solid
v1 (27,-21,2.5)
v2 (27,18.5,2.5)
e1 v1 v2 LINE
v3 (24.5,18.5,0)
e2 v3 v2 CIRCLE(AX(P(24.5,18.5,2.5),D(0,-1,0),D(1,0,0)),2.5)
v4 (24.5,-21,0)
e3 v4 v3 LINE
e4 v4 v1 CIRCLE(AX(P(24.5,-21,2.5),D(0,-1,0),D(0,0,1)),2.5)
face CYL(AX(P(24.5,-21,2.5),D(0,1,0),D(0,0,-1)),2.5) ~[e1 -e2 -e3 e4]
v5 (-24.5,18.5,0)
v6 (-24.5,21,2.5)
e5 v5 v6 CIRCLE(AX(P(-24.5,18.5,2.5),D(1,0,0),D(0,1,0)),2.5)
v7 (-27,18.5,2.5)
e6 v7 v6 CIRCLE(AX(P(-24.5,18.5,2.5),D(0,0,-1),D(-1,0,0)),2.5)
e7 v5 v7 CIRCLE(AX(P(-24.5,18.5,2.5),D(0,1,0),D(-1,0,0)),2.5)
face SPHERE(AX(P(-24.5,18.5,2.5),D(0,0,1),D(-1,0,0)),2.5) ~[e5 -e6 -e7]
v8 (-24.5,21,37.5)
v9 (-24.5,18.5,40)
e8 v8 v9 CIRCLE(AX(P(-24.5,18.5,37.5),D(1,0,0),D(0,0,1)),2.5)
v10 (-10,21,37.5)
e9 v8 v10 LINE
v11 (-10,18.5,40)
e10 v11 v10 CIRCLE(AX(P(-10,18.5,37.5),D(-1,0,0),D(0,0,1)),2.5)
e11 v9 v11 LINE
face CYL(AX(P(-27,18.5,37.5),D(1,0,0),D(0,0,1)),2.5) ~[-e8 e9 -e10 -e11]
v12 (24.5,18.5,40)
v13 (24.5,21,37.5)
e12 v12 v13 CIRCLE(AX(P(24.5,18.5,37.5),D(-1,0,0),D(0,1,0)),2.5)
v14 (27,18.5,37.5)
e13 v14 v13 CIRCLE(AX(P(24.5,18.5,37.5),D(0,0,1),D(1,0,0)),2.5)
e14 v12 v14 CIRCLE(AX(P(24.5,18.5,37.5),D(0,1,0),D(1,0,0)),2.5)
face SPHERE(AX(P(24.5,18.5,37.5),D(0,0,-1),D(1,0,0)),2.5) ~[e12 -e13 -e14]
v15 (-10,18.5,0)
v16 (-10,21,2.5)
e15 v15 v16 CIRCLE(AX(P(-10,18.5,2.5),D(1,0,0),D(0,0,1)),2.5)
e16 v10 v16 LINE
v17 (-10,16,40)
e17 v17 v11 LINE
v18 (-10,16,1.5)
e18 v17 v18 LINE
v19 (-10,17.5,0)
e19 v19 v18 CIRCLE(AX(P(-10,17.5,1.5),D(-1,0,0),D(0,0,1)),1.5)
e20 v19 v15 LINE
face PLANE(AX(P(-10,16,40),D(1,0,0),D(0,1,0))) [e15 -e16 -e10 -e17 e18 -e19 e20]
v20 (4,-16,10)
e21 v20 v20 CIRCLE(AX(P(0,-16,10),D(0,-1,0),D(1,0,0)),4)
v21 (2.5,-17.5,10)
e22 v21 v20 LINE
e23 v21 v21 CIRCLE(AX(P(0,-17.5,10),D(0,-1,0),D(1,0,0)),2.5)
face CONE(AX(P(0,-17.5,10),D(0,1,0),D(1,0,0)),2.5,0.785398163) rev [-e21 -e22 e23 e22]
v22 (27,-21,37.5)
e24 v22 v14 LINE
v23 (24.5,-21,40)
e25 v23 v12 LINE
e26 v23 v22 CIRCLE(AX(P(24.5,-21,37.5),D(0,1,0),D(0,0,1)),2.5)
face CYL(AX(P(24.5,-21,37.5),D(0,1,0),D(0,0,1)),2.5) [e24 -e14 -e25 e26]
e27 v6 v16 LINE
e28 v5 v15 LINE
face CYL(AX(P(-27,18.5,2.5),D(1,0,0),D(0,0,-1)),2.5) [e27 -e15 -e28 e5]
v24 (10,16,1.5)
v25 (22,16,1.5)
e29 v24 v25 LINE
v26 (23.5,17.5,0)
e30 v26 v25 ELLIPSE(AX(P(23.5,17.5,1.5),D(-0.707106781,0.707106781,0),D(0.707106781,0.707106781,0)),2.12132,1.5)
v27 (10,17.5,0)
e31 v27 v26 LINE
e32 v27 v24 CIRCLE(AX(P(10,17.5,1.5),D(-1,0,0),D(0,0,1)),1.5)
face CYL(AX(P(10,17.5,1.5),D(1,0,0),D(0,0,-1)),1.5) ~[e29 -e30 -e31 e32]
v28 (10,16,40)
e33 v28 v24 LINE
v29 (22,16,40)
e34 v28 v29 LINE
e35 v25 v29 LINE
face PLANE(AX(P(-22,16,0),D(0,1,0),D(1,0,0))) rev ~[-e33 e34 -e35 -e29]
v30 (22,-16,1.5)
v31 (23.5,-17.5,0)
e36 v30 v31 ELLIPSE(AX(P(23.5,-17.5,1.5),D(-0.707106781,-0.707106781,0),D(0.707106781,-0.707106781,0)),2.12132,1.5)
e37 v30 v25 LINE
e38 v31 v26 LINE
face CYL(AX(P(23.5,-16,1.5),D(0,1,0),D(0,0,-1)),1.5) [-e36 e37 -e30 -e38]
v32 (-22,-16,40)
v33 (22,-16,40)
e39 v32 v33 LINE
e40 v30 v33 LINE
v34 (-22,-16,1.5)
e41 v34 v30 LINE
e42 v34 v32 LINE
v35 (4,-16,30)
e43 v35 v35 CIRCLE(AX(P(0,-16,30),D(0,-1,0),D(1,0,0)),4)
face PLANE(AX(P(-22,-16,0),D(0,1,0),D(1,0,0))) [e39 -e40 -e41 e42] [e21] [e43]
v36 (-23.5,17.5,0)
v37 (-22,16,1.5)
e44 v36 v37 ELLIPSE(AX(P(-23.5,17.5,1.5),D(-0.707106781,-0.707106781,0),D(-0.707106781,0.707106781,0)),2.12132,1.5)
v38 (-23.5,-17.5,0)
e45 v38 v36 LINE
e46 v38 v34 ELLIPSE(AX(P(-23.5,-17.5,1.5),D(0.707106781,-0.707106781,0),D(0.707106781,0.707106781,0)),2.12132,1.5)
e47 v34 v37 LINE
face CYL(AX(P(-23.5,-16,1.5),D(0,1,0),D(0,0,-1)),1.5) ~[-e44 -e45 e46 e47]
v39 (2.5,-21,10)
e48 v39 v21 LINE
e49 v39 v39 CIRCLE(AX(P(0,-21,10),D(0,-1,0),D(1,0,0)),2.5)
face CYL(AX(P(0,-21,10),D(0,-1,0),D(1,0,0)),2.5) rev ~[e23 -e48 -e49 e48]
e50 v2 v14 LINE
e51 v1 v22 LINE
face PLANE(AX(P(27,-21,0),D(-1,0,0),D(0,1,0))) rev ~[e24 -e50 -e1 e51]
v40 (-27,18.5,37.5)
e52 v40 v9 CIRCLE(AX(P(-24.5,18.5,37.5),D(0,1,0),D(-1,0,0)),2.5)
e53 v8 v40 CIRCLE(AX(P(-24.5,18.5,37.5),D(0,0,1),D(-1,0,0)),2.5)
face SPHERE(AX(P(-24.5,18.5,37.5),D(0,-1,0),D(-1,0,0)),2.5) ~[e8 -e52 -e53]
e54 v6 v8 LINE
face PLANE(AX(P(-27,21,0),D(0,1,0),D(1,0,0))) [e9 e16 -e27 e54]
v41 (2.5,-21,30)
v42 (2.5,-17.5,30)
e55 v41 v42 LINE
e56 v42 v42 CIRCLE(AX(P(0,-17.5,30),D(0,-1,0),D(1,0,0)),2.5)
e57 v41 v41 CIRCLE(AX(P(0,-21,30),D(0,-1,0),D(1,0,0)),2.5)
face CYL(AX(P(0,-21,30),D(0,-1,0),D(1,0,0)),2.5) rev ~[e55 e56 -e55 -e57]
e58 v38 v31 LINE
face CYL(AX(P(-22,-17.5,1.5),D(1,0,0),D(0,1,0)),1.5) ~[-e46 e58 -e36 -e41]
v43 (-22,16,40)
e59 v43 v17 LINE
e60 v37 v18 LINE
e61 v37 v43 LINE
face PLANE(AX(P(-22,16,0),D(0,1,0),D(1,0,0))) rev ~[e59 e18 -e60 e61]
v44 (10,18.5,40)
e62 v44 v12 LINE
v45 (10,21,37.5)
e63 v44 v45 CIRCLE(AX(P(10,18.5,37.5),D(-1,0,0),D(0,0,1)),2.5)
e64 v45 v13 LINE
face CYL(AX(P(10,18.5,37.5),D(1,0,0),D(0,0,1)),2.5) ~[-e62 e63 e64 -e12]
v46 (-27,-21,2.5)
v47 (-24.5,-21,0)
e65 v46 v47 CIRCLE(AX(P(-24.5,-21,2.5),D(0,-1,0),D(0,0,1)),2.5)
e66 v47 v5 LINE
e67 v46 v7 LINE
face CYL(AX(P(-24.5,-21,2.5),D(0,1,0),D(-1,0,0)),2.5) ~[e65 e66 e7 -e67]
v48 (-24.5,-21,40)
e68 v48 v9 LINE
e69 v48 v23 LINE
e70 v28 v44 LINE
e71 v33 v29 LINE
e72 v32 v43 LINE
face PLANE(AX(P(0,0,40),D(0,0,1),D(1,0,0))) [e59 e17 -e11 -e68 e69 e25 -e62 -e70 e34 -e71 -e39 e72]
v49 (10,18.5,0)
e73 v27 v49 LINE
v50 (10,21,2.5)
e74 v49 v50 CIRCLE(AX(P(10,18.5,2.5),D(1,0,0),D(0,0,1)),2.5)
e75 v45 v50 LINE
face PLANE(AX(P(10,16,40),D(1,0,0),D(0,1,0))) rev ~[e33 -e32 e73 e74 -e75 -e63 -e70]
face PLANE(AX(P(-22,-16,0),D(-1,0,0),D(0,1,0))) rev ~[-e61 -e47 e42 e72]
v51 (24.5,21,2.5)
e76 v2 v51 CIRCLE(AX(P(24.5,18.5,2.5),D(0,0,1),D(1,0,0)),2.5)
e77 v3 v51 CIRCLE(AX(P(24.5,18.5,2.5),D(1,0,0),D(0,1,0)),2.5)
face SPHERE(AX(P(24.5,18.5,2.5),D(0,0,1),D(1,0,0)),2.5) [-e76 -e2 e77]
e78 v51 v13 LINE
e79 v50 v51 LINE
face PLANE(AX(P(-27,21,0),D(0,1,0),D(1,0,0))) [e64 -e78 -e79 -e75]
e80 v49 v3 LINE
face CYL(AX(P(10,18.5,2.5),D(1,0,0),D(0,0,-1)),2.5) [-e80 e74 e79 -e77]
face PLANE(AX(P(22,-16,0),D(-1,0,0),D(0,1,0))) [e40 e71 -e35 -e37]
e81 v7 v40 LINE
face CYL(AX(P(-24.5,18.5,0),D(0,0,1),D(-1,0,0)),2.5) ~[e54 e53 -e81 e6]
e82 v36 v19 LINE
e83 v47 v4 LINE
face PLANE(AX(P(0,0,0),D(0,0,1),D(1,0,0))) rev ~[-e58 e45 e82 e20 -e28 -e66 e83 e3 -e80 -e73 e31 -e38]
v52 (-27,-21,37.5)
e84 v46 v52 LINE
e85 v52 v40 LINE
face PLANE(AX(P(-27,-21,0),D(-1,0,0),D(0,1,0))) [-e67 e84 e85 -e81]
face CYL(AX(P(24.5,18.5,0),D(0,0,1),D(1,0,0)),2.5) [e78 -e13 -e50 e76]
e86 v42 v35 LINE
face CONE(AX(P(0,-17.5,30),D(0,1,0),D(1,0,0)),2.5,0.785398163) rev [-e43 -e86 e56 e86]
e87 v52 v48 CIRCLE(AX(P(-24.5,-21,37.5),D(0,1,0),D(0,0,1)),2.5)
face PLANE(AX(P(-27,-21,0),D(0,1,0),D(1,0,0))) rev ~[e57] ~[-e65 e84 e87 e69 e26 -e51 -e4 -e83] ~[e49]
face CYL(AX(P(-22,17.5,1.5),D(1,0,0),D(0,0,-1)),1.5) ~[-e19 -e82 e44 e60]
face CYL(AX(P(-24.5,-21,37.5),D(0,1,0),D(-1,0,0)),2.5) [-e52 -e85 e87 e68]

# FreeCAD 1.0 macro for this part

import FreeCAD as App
import Part
import Sketcher
from FreeCAD import Vector
Q = App.Units.Quantity


def edges_at(feature, points):
    """Names of the edges that pass closest to the given points."""
    edges = feature.Shape.Edges
    near = lambda p: min(range(len(edges)), key=lambda i: edges[i].distToShape(Part.Vertex(*p))[0])
    return sorted({f"Edge{near(p) + 1}" for p in points})

doc = App.newDocument("Part")
body = doc.addObject("PartDesign::Body", "Body")

sketch1 = body.newObject("Sketcher::SketchObject", "Sketch")
sketch1.AttachmentSupport = (doc.getObject("XY_Plane"), [""])
sketch1.MapMode = "FlatFace"
sketch1.addGeometry([
    Part.LineSegment(Vector(-27, 21, 0), Vector(-27, -21, 0)),
    Part.LineSegment(Vector(-27, -21, 0), Vector(27, -21, 0)),
    Part.LineSegment(Vector(27, -21, 0), Vector(27, 21, 0)),
    Part.LineSegment(Vector(27, 21, 0), Vector(-27, 21, 0)),
    Part.LineSegment(Vector(22, -16, 0), Vector(-22, -16, 0)),
    Part.LineSegment(Vector(-22, -16, 0), Vector(-22, 16, 0)),
    Part.LineSegment(Vector(-22, 16, 0), Vector(22, 16, 0)),
    Part.LineSegment(Vector(22, 16, 0), Vector(22, -16, 0)),
], False)
sketch1.addConstraint([
    Sketcher.Constraint("Coincident", 0, 2, 1, 1),
    Sketcher.Constraint("Coincident", 1, 2, 2, 1),
    Sketcher.Constraint("Coincident", 2, 2, 3, 1),
    Sketcher.Constraint("Coincident", 3, 2, 0, 1),
    Sketcher.Constraint("Coincident", 4, 2, 5, 1),
    Sketcher.Constraint("Coincident", 5, 2, 6, 1),
    Sketcher.Constraint("Coincident", 6, 2, 7, 1),
    Sketcher.Constraint("Coincident", 7, 2, 4, 1),
    Sketcher.Constraint("Vertical", 0),
    Sketcher.Constraint("Horizontal", 1),
    Sketcher.Constraint("Vertical", 2),
    Sketcher.Constraint("Horizontal", 3),
    Sketcher.Constraint("Horizontal", 4),
    Sketcher.Constraint("Vertical", 5),
    Sketcher.Constraint("Horizontal", 6),
    Sketcher.Constraint("Vertical", 7),
    Sketcher.Constraint("Symmetric", 0, 2, 2, 2, -1, 1),
    Sketcher.Constraint("Symmetric", 4, 2, 6, 2, -1, 1),
    Sketcher.Constraint("DistanceX", 1, 1, 1, 2, Q("54 mm")),
    Sketcher.Constraint("DistanceX", 4, 2, 4, 1, Q("44 mm")),
    Sketcher.Constraint("DistanceY", 0, 2, 0, 1, Q("42 mm")),
    Sketcher.Constraint("DistanceY", 5, 1, 5, 2, Q("32 mm")),
])
pad1 = body.newObject("PartDesign::Pad", "Pad")
pad1.Profile = sketch1
pad1.Length = 40

sketch2 = body.newObject("Sketcher::SketchObject", "Sketch001")
sketch2.AttachmentSupport = (doc.getObject("XY_Plane"), [""])
sketch2.MapMode = "FlatFace"
sketch2.AttachmentOffset = App.Placement(Vector(0, 0, 40), App.Rotation())
sketch2.addGeometry([
    Part.LineSegment(Vector(-10, 21, 0), Vector(-10, 16, 0)),
    Part.LineSegment(Vector(-10, 16, 0), Vector(10, 16, 0)),
    Part.LineSegment(Vector(10, 16, 0), Vector(10, 21, 0)),
    Part.LineSegment(Vector(10, 21, 0), Vector(-10, 21, 0)),
], False)
sketch2.addConstraint([
    Sketcher.Constraint("Coincident", 0, 2, 1, 1),
    Sketcher.Constraint("Coincident", 1, 2, 2, 1),
    Sketcher.Constraint("Coincident", 2, 2, 3, 1),
    Sketcher.Constraint("Coincident", 3, 2, 0, 1),
    Sketcher.Constraint("Vertical", 0),
    Sketcher.Constraint("Horizontal", 1),
    Sketcher.Constraint("Vertical", 2),
    Sketcher.Constraint("Horizontal", 3),
    Sketcher.Constraint("DistanceX", 1, 1, 1, 2, Q("20 mm")),
    Sketcher.Constraint("DistanceY", 0, 2, 0, 1, Q("5 mm")),
    Sketcher.Constraint("DistanceX", 0, 2, -1, 1, Q("10 mm")),
    Sketcher.Constraint("DistanceY", -1, 1, 0, 2, Q("16 mm")),
])
pocket1 = body.newObject("PartDesign::Pocket", "Pocket")
pocket1.Profile = sketch2
pocket1.Length = 40

sketch3 = body.newObject("Sketcher::SketchObject", "Sketch002")
sketch3.AttachmentSupport = (doc.getObject("XZ_Plane"), [""])
sketch3.MapMode = "FlatFace"
sketch3.AttachmentOffset = App.Placement(Vector(0, 0, 21), App.Rotation())
sketch3.addGeometry(Part.Circle(Vector(0, 10, 0), Vector(0, 0, 1), 2.5), False)
sketch3.addConstraint([
    Sketcher.Constraint("PointOnObject", 0, 3, -2),
    Sketcher.Constraint("Diameter", 0, Q("5 mm")),
    Sketcher.Constraint("DistanceY", -1, 1, 0, 3, Q("10 mm")),
])
pocket2 = body.newObject("PartDesign::Pocket", "Pocket001")
pocket2.Profile = sketch3
pocket2.Type = "ThroughAll"
doc.recompute()

chamfer = body.newObject("PartDesign::Chamfer", "Chamfer")
chamfer.Base = (pocket2, edges_at(pocket2, [(-2.5, -16, 10)]))
chamfer.Size = 1.5
doc.recompute()

fillet = body.newObject("PartDesign::Fillet", "Fillet")
fillet.Base = (chamfer, edges_at(chamfer, [
    (27, 21, 20),
    (27, 0, 40),
    (-27, 0, 40),
    (-27, 21, 20),
    (-27, 0, 0),
    (27, 0, 0),
    (18.5, 21, 40),
    (-18.5, 21, 40),
    (-18.5, 21, 0),
    (18.5, 21, 0),
]))
fillet.Radius = 2.5

sketch4 = body.newObject("Sketcher::SketchObject", "Sketch003")
sketch4.AttachmentSupport = (doc.getObject("XZ_Plane"), [""])
sketch4.MapMode = "FlatFace"
sketch4.AttachmentOffset = App.Placement(Vector(0, 0, 21), App.Rotation())
sketch4.addGeometry(Part.Circle(Vector(0, 30, 0), Vector(0, 0, 1), 2.5), False)
sketch4.addConstraint([
    Sketcher.Constraint("PointOnObject", 0, 3, -2),
    Sketcher.Constraint("Diameter", 0, Q("5 mm")),
    Sketcher.Constraint("DistanceY", -1, 1, 0, 3, Q("30 mm")),
])
pocket3 = body.newObject("PartDesign::Pocket", "Pocket002")
pocket3.Profile = sketch4
pocket3.Type = "ThroughAll"
doc.recompute()

chamfer2 = body.newObject("PartDesign::Chamfer", "Chamfer001")
chamfer2.Base = (pocket3, edges_at(pocket3, [(-2.5, -16, 30)]))
chamfer2.Size = 1.5
doc.recompute()

fillet2 = body.newObject("PartDesign::Fillet", "Fillet001")
fillet2.Base = (chamfer2, edges_at(chamfer2, [
    (-22, 0, 0),
    (0, -16, 0),
    (22, 0, 0),
    (16, 16, 0),
    (-16, 16, 0),
]))
fillet2.Radius = 1.5

doc.recompute()
